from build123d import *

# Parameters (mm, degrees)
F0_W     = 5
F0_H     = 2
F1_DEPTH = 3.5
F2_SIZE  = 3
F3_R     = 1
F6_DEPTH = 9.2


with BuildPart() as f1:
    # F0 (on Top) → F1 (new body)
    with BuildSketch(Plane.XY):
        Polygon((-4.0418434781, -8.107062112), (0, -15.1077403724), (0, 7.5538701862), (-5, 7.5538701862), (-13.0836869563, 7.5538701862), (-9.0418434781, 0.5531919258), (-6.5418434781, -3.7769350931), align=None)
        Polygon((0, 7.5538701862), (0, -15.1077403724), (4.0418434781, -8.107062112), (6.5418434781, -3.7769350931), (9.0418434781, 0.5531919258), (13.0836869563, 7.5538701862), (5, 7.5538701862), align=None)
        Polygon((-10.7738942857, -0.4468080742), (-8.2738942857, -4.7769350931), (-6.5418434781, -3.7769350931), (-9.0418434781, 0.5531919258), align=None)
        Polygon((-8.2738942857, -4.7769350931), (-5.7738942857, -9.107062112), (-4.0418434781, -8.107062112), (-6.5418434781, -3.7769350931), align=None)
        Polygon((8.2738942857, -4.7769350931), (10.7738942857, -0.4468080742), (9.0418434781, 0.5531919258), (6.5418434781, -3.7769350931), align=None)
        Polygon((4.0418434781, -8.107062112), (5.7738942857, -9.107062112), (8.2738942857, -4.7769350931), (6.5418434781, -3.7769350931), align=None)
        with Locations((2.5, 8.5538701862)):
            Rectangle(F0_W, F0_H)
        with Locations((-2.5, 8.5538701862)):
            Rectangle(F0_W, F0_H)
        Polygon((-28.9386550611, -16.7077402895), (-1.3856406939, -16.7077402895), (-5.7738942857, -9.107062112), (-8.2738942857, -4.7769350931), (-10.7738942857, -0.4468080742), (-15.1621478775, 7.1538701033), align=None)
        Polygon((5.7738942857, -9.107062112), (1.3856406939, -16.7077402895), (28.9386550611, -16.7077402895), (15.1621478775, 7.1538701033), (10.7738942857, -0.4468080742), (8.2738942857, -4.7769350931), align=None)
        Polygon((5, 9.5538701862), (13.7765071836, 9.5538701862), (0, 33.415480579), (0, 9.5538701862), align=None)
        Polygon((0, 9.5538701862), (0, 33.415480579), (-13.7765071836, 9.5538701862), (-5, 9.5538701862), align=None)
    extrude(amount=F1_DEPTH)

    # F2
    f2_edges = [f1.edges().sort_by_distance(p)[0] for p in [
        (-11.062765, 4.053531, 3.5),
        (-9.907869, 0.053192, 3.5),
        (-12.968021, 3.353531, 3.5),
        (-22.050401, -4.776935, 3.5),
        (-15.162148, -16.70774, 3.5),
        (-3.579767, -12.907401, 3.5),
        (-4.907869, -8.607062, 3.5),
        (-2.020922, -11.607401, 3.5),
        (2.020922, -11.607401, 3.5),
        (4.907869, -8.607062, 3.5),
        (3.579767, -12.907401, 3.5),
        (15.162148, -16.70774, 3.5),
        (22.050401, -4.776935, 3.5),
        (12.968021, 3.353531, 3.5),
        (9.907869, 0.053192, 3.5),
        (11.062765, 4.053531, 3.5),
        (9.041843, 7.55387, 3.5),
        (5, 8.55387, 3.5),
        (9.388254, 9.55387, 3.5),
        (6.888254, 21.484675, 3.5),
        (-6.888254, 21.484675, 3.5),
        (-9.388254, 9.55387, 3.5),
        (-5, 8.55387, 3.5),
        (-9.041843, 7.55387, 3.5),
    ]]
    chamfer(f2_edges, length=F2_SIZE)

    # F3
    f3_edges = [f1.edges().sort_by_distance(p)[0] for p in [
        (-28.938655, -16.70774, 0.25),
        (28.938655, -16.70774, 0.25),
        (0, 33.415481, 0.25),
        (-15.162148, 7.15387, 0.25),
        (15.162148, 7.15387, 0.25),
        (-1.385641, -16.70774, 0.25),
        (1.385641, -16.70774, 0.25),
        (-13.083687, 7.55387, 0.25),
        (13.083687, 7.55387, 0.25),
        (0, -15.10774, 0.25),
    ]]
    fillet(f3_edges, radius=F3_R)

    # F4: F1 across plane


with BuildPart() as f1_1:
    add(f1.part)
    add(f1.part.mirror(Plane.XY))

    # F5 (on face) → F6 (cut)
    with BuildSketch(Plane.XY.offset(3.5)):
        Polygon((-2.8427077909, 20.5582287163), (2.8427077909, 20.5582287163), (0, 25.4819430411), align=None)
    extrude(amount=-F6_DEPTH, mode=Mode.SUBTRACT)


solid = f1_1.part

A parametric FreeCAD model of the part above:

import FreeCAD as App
import Part
import Sketcher

V = App.Vector
Q = App.Units.Quantity


def edges_at(feature, points):
    """Names of the edges that pass closest to the given points."""
    edges = feature.Shape.Edges
    near = lambda p: min(range(len(edges)), key=lambda i: edges[i].distToShape(Part.Vertex(*p))[0])
    return sorted({f"Edge{near(p) + 1}" for p in points})

doc = App.newDocument("Part")
body = doc.addObject("PartDesign::Body", "Body")

sketch1 = body.newObject("Sketcher::SketchObject", "Sketch")
sketch1.AttachmentSupport = (doc.getObject("XY_Plane"), [""])
sketch1.MapMode = "FlatFace"
sketch1.addGeometry(Part.LineSegment(V(-4, -8.1, 0), V(0, -15.1, 0)), False)
sketch1.addGeometry(Part.LineSegment(V(0, -15.1, 0), V(4, -8.1, 0)), False)
sketch1.addGeometry(Part.LineSegment(V(4, -8.1, 0), V(5.8, -9.1, 0)), False)
sketch1.addGeometry(Part.LineSegment(V(5.8, -9.1, 0), V(1.4, -16.7, 0)), False)
sketch1.addGeometry(Part.LineSegment(V(1.4, -16.7, 0), V(28.9, -16.7, 0)), False)
sketch1.addGeometry(Part.LineSegment(V(28.9, -16.7, 0), V(15.2, 7.2, 0)), False)
sketch1.addGeometry(Part.LineSegment(V(15.2, 7.2, 0), V(10.8, -0.4, 0)), False)
sketch1.addGeometry(Part.LineSegment(V(10.8, -0.4, 0), V(9, 0.6, 0)), False)
sketch1.addGeometry(Part.LineSegment(V(9, 0.6, 0), V(13.1, 7.6, 0)), False)
sketch1.addGeometry(Part.LineSegment(V(13.1, 7.6, 0), V(5, 7.6, 0)), False)
sketch1.addGeometry(Part.LineSegment(V(5, 7.6, 0), V(5, 9.6, 0)), False)
sketch1.addGeometry(Part.LineSegment(V(5, 9.6, 0), V(13.8, 9.6, 0)), False)
sketch1.addGeometry(Part.LineSegment(V(13.8, 9.6, 0), V(0, 33.4, 0)), False)
sketch1.addGeometry(Part.LineSegment(V(0, 33.4, 0), V(-13.8, 9.6, 0)), False)
sketch1.addGeometry(Part.LineSegment(V(-13.8, 9.6, 0), V(-5, 9.6, 0)), False)
sketch1.addGeometry(Part.LineSegment(V(-5, 9.6, 0), V(-5, 7.6, 0)), False)
sketch1.addGeometry(Part.LineSegment(V(-5, 7.6, 0), V(-13.1, 7.6, 0)), False)
sketch1.addGeometry(Part.LineSegment(V(-13.1, 7.6, 0), V(-9, 0.6, 0)), False)
sketch1.addGeometry(Part.LineSegment(V(-9, 0.6, 0), V(-10.8, -0.4, 0)), False)
sketch1.addGeometry(Part.LineSegment(V(-10.8, -0.4, 0), V(-15.2, 7.2, 0)), False)
sketch1.addGeometry(Part.LineSegment(V(-15.2, 7.2, 0), V(-28.9, -16.7, 0)), False)
sketch1.addGeometry(Part.LineSegment(V(-28.9, -16.7, 0), V(-1.4, -16.7, 0)), False)
sketch1.addGeometry(Part.LineSegment(V(-1.4, -16.7, 0), V(-5.8, -9.1, 0)), False)
sketch1.addGeometry(Part.LineSegment(V(-5.8, -9.1, 0), V(-4, -8.1, 0)), False)
sketch1.addConstraint(Sketcher.Constraint("Coincident", 0, 2, 1, 1))
sketch1.addConstraint(Sketcher.Constraint("Coincident", 1, 2, 2, 1))
sketch1.addConstraint(Sketcher.Constraint("Coincident", 2, 2, 3, 1))
sketch1.addConstraint(Sketcher.Constraint("Coincident", 3, 2, 4, 1))
sketch1.addConstraint(Sketcher.Constraint("Coincident", 4, 2, 5, 1))
sketch1.addConstraint(Sketcher.Constraint("Coincident", 5, 2, 6, 1))
sketch1.addConstraint(Sketcher.Constraint("Coincident", 6, 2, 7, 1))
sketch1.addConstraint(Sketcher.Constraint("Coincident", 7, 2, 8, 1))
sketch1.addConstraint(Sketcher.Constraint("Coincident", 8, 2, 9, 1))
sketch1.addConstraint(Sketcher.Constraint("Coincident", 9, 2, 10, 1))
sketch1.addConstraint(Sketcher.Constraint("Coincident", 10, 2, 11, 1))
sketch1.addConstraint(Sketcher.Constraint("Coincident", 11, 2, 12, 1))
sketch1.addConstraint(Sketcher.Constraint("Coincident", 12, 2, 13, 1))
sketch1.addConstraint(Sketcher.Constraint("Coincident", 13, 2, 14, 1))
sketch1.addConstraint(Sketcher.Constraint("Coincident", 14, 2, 15, 1))
sketch1.addConstraint(Sketcher.Constraint("Coincident", 15, 2, 16, 1))
sketch1.addConstraint(Sketcher.Constraint("Coincident", 16, 2, 17, 1))
sketch1.addConstraint(Sketcher.Constraint("Coincident", 17, 2, 18, 1))
sketch1.addConstraint(Sketcher.Constraint("Coincident", 18, 2, 19, 1))
sketch1.addConstraint(Sketcher.Constraint("Coincident", 19, 2, 20, 1))
sketch1.addConstraint(Sketcher.Constraint("Coincident", 20, 2, 21, 1))
sketch1.addConstraint(Sketcher.Constraint("Coincident", 21, 2, 22, 1))
sketch1.addConstraint(Sketcher.Constraint("Coincident", 22, 2, 23, 1))
sketch1.addConstraint(Sketcher.Constraint("Coincident", 23, 2, 0, 1))
sketch1.addConstraint(Sketcher.Constraint("Horizontal", 4))
sketch1.addConstraint(Sketcher.Constraint("Horizontal", 9))
sketch1.addConstraint(Sketcher.Constraint("Vertical", 10))
sketch1.addConstraint(Sketcher.Constraint("Horizontal", 11))
sketch1.addConstraint(Sketcher.Constraint("Horizontal", 14))
sketch1.addConstraint(Sketcher.Constraint("Vertical", 15))
sketch1.addConstraint(Sketcher.Constraint("Horizontal", 16))
sketch1.addConstraint(Sketcher.Constraint("Horizontal", 21))
sketch1.addConstraint(Sketcher.Constraint("Symmetric", 11, 2, 13, 2, -2))
sketch1.addConstraint(Sketcher.Constraint("Symmetric", 9, 2, 15, 2, -2))
sketch1.addConstraint(Sketcher.Constraint("Symmetric", 7, 2, 17, 2, -2))
sketch1.addConstraint(Sketcher.Constraint("Symmetric", 6, 2, 18, 2, -2))
sketch1.addConstraint(Sketcher.Constraint("Symmetric", 5, 2, 19, 2, -2))
sketch1.addConstraint(Sketcher.Constraint("Symmetric", 4, 2, 20, 2, -2))
sketch1.addConstraint(Sketcher.Constraint("Symmetric", 2, 2, 22, 2, -2))
sketch1.addConstraint(Sketcher.Constraint("Symmetric", 1, 2, 23, 2, -2))
sketch1.addConstraint(Sketcher.Constraint("PointOnObject", 0, 2, -2))
sketch1.addConstraint(Sketcher.Constraint("PointOnObject", 12, 2, -2))
sketch1.addConstraint(Sketcher.Constraint("Perpendicular", 1, 2))
sketch1.addConstraint(Sketcher.Constraint("Perpendicular", 2, 3))
sketch1.addConstraint(Sketcher.Constraint("Parallel", 0, 5))
sketch1.addConstraint(Sketcher.Constraint("Parallel", 3, 6))
sketch1.addConstraint(Sketcher.Constraint("Perpendicular", 6, 7))
sketch1.addConstraint(Sketcher.Constraint("Perpendicular", 7, 8))
sketch1.addConstraint(Sketcher.Constraint("Parallel", 5, 12))
sketch1.addConstraint(Sketcher.Constraint("Parallel", 12, 17))
sketch1.addConstraint(Sketcher.Constraint("Parallel", 19, 22))
sketch1.addConstraint(Sketcher.Constraint("Equal", 3, 6))
sketch1.addConstraint(Sketcher.Constraint("Equal", 2, 7))
sketch1.addConstraint(Sketcher.Constraint("Equal", 1, 8))
sketch1.addConstraint(Sketcher.Constraint("Equal", 5, 12))
sketch1.addConstraint(Sketcher.Constraint("DistanceY", 10, 1, 10, 2, 2.0))
sketch1.addConstraint(Sketcher.Constraint("Angle", 0, Q("-60 deg")))
sketch1.addConstraint(Sketcher.Constraint("Distance", 2, 2.0))
sketch1.addConstraint(Sketcher.Constraint("DistanceX", -1, 1, 9, 2, 5.0))
sketch1.addConstraint(Sketcher.Constraint("DistanceX", 2, 2, 6, 2, 5.0))
sketch1.addConstraint(Sketcher.Constraint("DistanceY", 3, 2, 0, 2, 1.6))
sketch1.addConstraint(Sketcher.Constraint("DistanceX", 13, 2, 6, 2, 24.550401))
sketch1.addConstraint(Sketcher.Constraint("DistanceX", 4, 1, 4, 2, 27.553014))
sketch1.addConstraint(Sketcher.Constraint("DistanceY", 0, 2, -1, 1, 15.10774))
pad1 = body.newObject("PartDesign::Pad", "Pad")
pad1.Profile = sketch1
pad1.Length = 3.5
doc.recompute()

chamfer = body.newObject("PartDesign::Chamfer", "Chamfer")
chamfer.Base = (pad1, edges_at(pad1, [
    (-11.063, 4.054, 3.5),
    (-9.908, 0.053, 3.5),
    (-12.968, 3.354, 3.5),
    (-22.05, -4.777, 3.5),
    (-15.162, -16.708, 3.5),
    (-3.58, -12.907, 3.5),
    (-4.908, -8.607, 3.5),
    (-2.021, -11.607, 3.5),
    (2.021, -11.607, 3.5),
    (4.908, -8.607, 3.5),
    (3.58, -12.907, 3.5),
    (15.162, -16.708, 3.5),
    (22.05, -4.777, 3.5),
    (12.968, 3.354, 3.5),
    (9.908, 0.053, 3.5),
    (11.063, 4.054, 3.5),
    (9.042, 7.554, 3.5),
    (5, 8.554, 3.5),
    (9.388, 9.554, 3.5),
    (6.888, 21.485, 3.5),
    (-6.888, 21.485, 3.5),
    (-9.388, 9.554, 3.5),
    (-5, 8.554, 3.5),
    (-9.042, 7.554, 3.5),
]))
chamfer.Size = 3
doc.recompute()

fillet = body.newObject("PartDesign::Fillet", "Fillet")
fillet.Base = (chamfer, edges_at(chamfer, [
    (-28.939, -16.708, 0.25),
    (28.939, -16.708, 0.25),
    (0, 33.415, 0.25),
    (-15.162, 7.154, 0.25),
    (15.162, 7.154, 0.25),
    (-1.386, -16.708, 0.25),
    (1.386, -16.708, 0.25),
    (-13.084, 7.554, 0.25),
    (13.084, 7.554, 0.25),
    (0, -15.108, 0.25),
]))
fillet.Radius = 1
body2 = doc.addObject("PartDesign::Body", "Body001")
doc.recompute()

body2.BaseFeature = body
doc.recompute()

mirroring = doc.addObject("Part::Mirroring", "Mirroring")
mirroring.Source = body
mirroring.Base = V(0, 0, 0)
mirroring.Normal = V(0, 0, 1)
body3 = doc.addObject("PartDesign::Body", "Body002")
body3.BaseFeature = mirroring
boolean = body2.newObject("PartDesign::Boolean", "Boolean")
boolean.Type = "Fuse"
boolean.addObjects([body3])
doc.recompute()

sketch2 = body2.newObject("Sketcher::SketchObject", "Sketch001")
sketch2.AttachmentSupport = (doc.getObject("XY_Plane001"), [""])
sketch2.MapMode = "FlatFace"
sketch2.AttachmentOffset = App.Placement(V(0, 0, 3.5), App.Rotation())
sketch2.addGeometry(Part.LineSegment(V(-3, 21, 0), V(3, 21, 0)), False)
sketch2.addGeometry(Part.LineSegment(V(3, 21, 0), V(0, 25, 0)), False)
sketch2.addGeometry(Part.LineSegment(V(0, 25, 0), V(-3, 21, 0)), False)
sketch2.addConstraint(Sketcher.Constraint("Coincident", 0, 2, 1, 1))
sketch2.addConstraint(Sketcher.Constraint("Coincident", 1, 2, 2, 1))
sketch2.addConstraint(Sketcher.Constraint("Coincident", 2, 2, 0, 1))
sketch2.addConstraint(Sketcher.Constraint("Horizontal", 0))
sketch2.addConstraint(Sketcher.Constraint("PointOnObject", 1, 2, -2))
sketch2.addConstraint(Sketcher.Constraint("Equal", 1, 2))
sketch2.addConstraint(Sketcher.Constraint("Angle", 1, Q("120 deg")))
sketch2.addConstraint(Sketcher.Constraint("DistanceX", 0, 1, 0, 2, 5.685416))
sketch2.addConstraint(Sketcher.Constraint("DistanceY", -1, 1, 0, 2, 20.558229))
pocket1 = body2.newObject("PartDesign::Pocket", "Pocket")
pocket1.Profile = sketch2
pocket1.Length = 9.2
mirroring.Visibility = False

doc.recompute()
